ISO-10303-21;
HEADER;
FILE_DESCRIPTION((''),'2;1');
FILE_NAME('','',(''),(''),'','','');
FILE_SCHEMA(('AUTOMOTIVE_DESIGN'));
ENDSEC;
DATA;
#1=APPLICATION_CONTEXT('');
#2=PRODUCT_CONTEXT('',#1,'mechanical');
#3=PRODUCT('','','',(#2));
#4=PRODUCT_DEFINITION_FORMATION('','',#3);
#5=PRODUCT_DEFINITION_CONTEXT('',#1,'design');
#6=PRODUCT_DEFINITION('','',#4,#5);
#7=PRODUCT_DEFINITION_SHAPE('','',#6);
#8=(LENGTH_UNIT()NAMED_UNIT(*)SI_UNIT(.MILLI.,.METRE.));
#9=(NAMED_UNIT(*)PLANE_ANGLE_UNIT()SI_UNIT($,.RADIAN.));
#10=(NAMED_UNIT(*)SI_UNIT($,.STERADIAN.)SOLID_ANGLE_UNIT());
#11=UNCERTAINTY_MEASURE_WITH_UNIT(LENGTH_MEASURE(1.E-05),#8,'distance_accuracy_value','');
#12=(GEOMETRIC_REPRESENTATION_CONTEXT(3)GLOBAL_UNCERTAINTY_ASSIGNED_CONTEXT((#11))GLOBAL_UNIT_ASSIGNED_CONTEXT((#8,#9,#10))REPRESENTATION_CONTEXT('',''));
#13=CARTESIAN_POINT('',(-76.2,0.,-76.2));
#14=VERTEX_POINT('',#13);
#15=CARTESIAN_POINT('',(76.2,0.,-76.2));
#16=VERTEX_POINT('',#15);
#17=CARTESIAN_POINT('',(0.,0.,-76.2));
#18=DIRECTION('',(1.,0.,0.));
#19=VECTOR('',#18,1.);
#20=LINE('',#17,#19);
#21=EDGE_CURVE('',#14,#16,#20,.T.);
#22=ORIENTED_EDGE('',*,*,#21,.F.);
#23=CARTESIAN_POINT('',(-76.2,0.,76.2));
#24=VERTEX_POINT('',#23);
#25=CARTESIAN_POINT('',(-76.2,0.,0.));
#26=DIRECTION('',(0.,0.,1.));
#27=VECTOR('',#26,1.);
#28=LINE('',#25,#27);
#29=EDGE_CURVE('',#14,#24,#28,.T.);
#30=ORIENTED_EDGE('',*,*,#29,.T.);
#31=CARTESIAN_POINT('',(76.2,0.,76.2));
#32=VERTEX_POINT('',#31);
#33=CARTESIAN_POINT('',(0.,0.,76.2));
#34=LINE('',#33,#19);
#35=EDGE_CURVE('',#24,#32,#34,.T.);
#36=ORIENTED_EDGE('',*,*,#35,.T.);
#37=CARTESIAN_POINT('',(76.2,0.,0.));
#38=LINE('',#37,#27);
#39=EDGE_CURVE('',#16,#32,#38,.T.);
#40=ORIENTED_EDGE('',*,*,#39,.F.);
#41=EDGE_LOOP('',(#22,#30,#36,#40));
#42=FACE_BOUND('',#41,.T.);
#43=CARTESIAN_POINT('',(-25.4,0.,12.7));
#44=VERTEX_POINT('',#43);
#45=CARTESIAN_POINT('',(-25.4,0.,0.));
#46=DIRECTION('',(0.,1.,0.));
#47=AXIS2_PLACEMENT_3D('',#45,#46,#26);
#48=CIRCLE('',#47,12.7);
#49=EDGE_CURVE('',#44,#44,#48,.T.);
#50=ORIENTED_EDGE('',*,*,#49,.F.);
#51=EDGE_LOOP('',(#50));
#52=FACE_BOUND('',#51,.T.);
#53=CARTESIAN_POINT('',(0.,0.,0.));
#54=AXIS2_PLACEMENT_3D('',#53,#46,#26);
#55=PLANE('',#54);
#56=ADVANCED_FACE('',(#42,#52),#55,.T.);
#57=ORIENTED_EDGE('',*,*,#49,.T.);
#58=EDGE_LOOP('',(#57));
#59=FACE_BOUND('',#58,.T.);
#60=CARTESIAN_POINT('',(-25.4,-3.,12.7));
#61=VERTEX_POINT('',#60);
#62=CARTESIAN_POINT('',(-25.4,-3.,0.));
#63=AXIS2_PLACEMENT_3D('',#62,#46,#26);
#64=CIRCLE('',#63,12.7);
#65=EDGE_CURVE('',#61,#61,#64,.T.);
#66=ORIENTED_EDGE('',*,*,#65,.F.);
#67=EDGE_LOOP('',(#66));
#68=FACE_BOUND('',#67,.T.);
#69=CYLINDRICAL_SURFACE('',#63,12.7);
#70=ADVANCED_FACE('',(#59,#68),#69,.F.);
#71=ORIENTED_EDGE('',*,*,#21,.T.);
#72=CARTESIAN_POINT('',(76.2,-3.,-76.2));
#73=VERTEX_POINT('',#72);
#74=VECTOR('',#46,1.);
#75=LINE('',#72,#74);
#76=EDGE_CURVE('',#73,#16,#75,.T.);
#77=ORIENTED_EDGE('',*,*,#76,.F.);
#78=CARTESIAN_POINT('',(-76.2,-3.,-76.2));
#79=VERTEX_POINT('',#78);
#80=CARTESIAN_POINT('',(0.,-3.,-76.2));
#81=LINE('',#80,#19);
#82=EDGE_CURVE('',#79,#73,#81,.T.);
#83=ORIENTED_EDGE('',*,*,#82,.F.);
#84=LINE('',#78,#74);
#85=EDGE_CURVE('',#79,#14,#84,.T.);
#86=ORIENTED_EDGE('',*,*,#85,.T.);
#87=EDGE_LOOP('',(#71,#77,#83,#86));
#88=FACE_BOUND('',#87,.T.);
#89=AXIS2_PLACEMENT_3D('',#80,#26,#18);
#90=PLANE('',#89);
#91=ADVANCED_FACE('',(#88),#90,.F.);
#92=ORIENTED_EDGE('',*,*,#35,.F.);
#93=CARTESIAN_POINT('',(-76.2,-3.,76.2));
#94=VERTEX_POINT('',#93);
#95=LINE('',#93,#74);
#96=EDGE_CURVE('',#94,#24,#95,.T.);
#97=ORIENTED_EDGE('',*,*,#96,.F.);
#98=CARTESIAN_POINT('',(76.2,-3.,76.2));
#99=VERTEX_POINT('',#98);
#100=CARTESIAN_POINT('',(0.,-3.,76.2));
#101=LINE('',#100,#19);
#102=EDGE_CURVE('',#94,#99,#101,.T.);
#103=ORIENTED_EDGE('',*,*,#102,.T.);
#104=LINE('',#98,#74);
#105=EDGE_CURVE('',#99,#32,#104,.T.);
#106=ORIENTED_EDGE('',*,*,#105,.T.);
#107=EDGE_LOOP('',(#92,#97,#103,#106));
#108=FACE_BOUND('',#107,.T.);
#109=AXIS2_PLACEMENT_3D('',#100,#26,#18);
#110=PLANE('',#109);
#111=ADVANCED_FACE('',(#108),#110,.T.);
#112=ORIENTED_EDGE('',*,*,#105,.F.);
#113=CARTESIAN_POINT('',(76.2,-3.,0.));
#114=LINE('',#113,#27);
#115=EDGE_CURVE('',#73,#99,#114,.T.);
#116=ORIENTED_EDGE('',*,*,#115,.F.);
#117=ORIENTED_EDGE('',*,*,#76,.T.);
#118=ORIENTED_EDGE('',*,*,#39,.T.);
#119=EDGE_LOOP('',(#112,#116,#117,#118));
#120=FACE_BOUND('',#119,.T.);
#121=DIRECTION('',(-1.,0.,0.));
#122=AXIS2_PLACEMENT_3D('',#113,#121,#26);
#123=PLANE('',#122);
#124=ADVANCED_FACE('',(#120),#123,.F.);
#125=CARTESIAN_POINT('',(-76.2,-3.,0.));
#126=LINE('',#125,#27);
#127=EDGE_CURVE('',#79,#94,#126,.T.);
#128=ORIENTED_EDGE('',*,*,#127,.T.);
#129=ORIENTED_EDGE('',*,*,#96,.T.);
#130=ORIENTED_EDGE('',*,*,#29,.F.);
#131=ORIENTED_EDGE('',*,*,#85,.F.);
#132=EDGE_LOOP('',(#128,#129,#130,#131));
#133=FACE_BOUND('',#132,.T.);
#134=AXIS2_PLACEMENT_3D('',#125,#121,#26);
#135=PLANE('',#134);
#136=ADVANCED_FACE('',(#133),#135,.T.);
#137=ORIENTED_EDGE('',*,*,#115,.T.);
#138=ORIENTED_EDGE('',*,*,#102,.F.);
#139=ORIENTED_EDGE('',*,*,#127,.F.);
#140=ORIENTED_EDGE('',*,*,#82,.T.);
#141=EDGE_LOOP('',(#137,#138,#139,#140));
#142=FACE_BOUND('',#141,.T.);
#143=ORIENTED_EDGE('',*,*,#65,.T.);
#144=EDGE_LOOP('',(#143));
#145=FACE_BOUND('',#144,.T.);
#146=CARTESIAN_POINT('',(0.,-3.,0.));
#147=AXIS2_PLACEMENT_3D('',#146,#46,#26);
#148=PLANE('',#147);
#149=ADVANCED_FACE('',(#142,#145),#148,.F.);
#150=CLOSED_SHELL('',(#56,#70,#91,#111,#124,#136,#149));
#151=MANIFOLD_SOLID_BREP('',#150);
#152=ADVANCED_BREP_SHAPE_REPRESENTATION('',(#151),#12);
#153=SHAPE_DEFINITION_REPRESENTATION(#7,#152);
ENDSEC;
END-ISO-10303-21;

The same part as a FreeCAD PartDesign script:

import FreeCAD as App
import Part
import Sketcher

V = App.Vector
Q = App.Units.Quantity


def add_polygon(sketch, points):
    """Adds a closed chain of lines whose ends are joined by coincident constraints."""
    first, n = sketch.GeometryCount, len(points)
    for a, b in zip(points, points[1:] + points[:1]):
        sketch.addGeometry(Part.LineSegment(App.Vector(*a, 0), App.Vector(*b, 0)), False)
    for i in range(n):
        sketch.addConstraint(Sketcher.Constraint("Coincident", first + i, 2, first + (i + 1) % n, 1))

doc = App.newDocument("Part")
params = doc.addObject("Spreadsheet::Sheet", "Params")
for row, (alias, value) in enumerate([
    ("sketch1_diameter", "1 in"),
    ("sketch1_width", "6 in"),
    ("pad1_length", "3 mm"),
], start=1):
    params.set(f"A{row}", alias)
    params.set(f"B{row}", "=" + value)
    params.setAlias(f"B{row}", alias)

body = doc.addObject("PartDesign::Body", "Body")

sketch1 = doc.addObject("Sketcher::SketchObject", "Sketch")
body.addObject(sketch1)
sketch1.AttachmentSupport = (doc.XZ_Plane, [""])
sketch1.MapMode = "FlatFace"
add_polygon(sketch1, [(-76.2, -76.2), (-76.2, 76.2), (76.2, 76.2), (76.2, -76.2)])
sketch1.addGeometry(Part.Circle(V(-25.4, 0, 0), V(0, 0, 1), 12.7), False)
sketch1.addConstraint(Sketcher.Constraint("Vertical", 0))
sketch1.addConstraint(Sketcher.Constraint("Horizontal", 1))
sketch1.addConstraint(Sketcher.Constraint("Vertical", 2))
sketch1.addConstraint(Sketcher.Constraint("Horizontal", 3))
sketch1.addConstraint(Sketcher.Constraint("Symmetric", 0, 2, 2, 2, -1, 1))
sketch1.addConstraint(Sketcher.Constraint("PointOnObject", 4, 3, -1))
sketch1.addConstraint(Sketcher.Constraint("Equal", 3, 0))
sketch1.addConstraint(Sketcher.Constraint("Diameter", 4, Q("1 in")))
sketch1.addConstraint(Sketcher.Constraint("DistanceX", 1, 1, 1, 2, Q("6 in")))
sketch1.addConstraint(Sketcher.Constraint("DistanceX", 4, 3, -1, 1, Q("1 in")))
sketch1.setExpression("Constraints[11]", "Params.sketch1_diameter")
sketch1.setExpression("Constraints[12]", "Params.sketch1_width")
pad1 = doc.addObject("PartDesign::Pad", "Pad")
body.addObject(pad1)
pad1.Profile = sketch1
pad1.setExpression("Length", "Params.pad1_length")

doc.recompute()
